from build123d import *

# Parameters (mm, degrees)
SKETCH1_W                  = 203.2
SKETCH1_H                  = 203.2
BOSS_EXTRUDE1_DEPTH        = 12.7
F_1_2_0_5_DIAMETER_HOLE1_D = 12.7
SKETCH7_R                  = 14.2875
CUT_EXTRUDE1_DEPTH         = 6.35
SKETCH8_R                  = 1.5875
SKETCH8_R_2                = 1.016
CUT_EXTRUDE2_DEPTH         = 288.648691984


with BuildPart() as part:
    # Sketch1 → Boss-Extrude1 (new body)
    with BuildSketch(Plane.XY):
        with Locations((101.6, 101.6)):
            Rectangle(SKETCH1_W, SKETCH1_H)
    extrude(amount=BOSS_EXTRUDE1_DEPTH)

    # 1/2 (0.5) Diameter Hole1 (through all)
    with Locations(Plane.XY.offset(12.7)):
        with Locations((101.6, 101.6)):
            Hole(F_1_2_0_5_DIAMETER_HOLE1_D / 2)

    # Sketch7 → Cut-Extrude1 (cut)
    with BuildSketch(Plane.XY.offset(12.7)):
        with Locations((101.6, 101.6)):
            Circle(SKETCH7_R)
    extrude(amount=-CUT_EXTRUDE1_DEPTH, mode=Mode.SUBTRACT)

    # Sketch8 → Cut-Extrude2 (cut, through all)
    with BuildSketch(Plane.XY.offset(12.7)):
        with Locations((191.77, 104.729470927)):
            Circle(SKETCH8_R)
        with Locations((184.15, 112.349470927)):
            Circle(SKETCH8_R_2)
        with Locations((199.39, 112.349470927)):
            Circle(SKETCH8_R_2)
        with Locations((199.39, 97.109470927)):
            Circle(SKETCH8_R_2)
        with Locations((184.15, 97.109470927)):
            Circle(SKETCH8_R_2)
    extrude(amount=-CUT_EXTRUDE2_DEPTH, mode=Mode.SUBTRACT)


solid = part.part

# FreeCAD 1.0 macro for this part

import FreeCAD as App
import Part
import Sketcher

V = App.Vector
Q = App.Units.Quantity

doc = App.newDocument("Part")
params = doc.addObject("Spreadsheet::Sheet", "Params")
for row, (alias, value) in enumerate([
    ("sketch1_width", "8 in"),
    ("pad1_length", "0.5 in"),
    ("sketch2_diameter", "0.5 in"),
    ("hole_diameter", "0.5 in"),
    ("sketch3_diameter", "1.125 in"),
    ("pocket1_length", "0.25 in"),
    ("sketch4_diameter", "0.08 in"),
    ("sketch4_diameter2", "0.125 in"),
], start=1):
    params.set(f"A{row}", alias)
    params.set(f"B{row}", "=" + value)
    params.setAlias(f"B{row}", alias)

body = doc.addObject("PartDesign::Body", "Body")

# Sketch on XY plane
sketch1 = doc.addObject("Sketcher::SketchObject", "Sketch")
body.addObject(sketch1)
sketch1.AttachmentSupport = (doc.XY_Plane, [""])
sketch1.MapMode = "FlatFace"
sketch1.addGeometry([
    Part.LineSegment(V(0, 203, 0), V(0, 0, 0)),
    Part.LineSegment(V(0, 0, 0), V(203, 0, 0)),
    Part.LineSegment(V(203, 0, 0), V(203, 203, 0)),
    Part.LineSegment(V(203, 203, 0), V(0, 203, 0)),
], False)
sketch1.addConstraint([
    Sketcher.Constraint("Coincident", 0, 2, 1, 1),
    Sketcher.Constraint("Coincident", 1, 2, 2, 1),
    Sketcher.Constraint("Coincident", 2, 2, 3, 1),
    Sketcher.Constraint("Coincident", 3, 2, 0, 1),
    Sketcher.Constraint("Vertical", 0),
    Sketcher.Constraint("Horizontal", 1),
    Sketcher.Constraint("Vertical", 2),
    Sketcher.Constraint("Horizontal", 3),
    Sketcher.Constraint("Coincident", 0, 2, -1, 1),
    Sketcher.Constraint("Equal", 3, 0),
    Sketcher.Constraint("DistanceX", 1, 1, 1, 2, Q("8 in")),
])
sketch1.setExpression("Constraints[10]", "Params.sketch1_width")
pad1 = doc.addObject("PartDesign::Pad", "Pad")
body.addObject(pad1)
pad1.Profile = sketch1
pad1.setExpression("Length", "Params.pad1_length")

# Sketch on XY plane
sketch2 = doc.addObject("Sketcher::SketchObject", "Sketch001")
body.addObject(sketch2)
sketch2.AttachmentSupport = (doc.XY_Plane, [""])
sketch2.MapMode = "FlatFace"
sketch2.AttachmentOffset = App.Placement(V(0, 0, 0.5 * 25.4), App.Rotation())
sketch2.addGeometry(Part.Circle(V(102, 102, 0), V(0, 0, 1), 6), False)
sketch2.addConstraint([
    Sketcher.Constraint("Diameter", 0, Q("0.5 in")),
    Sketcher.Constraint("DistanceX", -1, 1, 0, 3, Q("4 in")),
    Sketcher.Constraint("DistanceY", -1, 1, 0, 3, Q("4 in")),
])
sketch2.setExpression("Constraints[0]", "Params.sketch2_diameter")
doc.recompute()
hole = doc.addObject("PartDesign::Hole", "Hole")
body.addObject(hole)
hole.Profile = sketch2
hole.ThreadType = "None"
hole.setExpression("Diameter", "Params.hole_diameter")
hole.DepthType = "ThroughAll"

# Sketch on XY plane
sketch3 = doc.addObject("Sketcher::SketchObject", "Sketch002")
body.addObject(sketch3)
sketch3.AttachmentSupport = (doc.XY_Plane, [""])
sketch3.MapMode = "FlatFace"
sketch3.AttachmentOffset = App.Placement(V(0, 0, 0.5 * 25.4), App.Rotation())
sketch3.addGeometry(Part.Circle(V(102, 102, 0), V(0, 0, 1), 14), False)
sketch3.addConstraint([
    Sketcher.Constraint("Diameter", 0, Q("1.125 in")),
    Sketcher.Constraint("DistanceX", -1, 1, 0, 3, Q("4 in")),
    Sketcher.Constraint("DistanceY", -1, 1, 0, 3, Q("4 in")),
])
sketch3.setExpression("Constraints[0]", "Params.sketch3_diameter")
pocket1 = doc.addObject("PartDesign::Pocket", "Pocket")
body.addObject(pocket1)
pocket1.Profile = sketch3
pocket1.setExpression("Length", "Params.pocket1_length")

# Sketch on XY plane
sketch4 = doc.addObject("Sketcher::SketchObject", "Sketch003")
body.addObject(sketch4)
sketch4.AttachmentSupport = (doc.XY_Plane, [""])
sketch4.MapMode = "FlatFace"
sketch4.AttachmentOffset = App.Placement(V(0, 0, 0.5 * 25.4), App.Rotation())
sketch4.addGeometry([
    Part.Circle(V(191.8, 104.7, 0), V(0, 0, 1), 1.6),  # 0
    Part.Circle(V(184.2, 112.3, 0), V(0, 0, 1), 1),  # 1
    Part.Circle(V(199.4, 112.3, 0), V(0, 0, 1), 1),  # 2
    Part.Circle(V(199.4, 97.1, 0), V(0, 0, 1), 1),  # 3
    Part.Circle(V(184.2, 97.1, 0), V(0, 0, 1), 1),  # 4
], False)
sketch4.addConstraint([
    Sketcher.Constraint("Equal", 1, 2),
    Sketcher.Constraint("Equal", 2, 3),
    Sketcher.Constraint("Equal", 3, 4),
    Sketcher.Constraint("Horizontal", 1, 3, 2, 3),
    Sketcher.Constraint("Horizontal", 3, 3, 4, 3),
    Sketcher.Constraint("Vertical", 2, 3, 3, 3),
    Sketcher.Constraint("Vertical", 1, 3, 4, 3),
    Sketcher.Constraint("Diameter", 1, Q("0.08 in")),
    Sketcher.Constraint("Diameter", 0, Q("0.125 in")),
    Sketcher.Constraint("DistanceX", 1, 3, 0, 3, Q("0.3 in")),
    Sketcher.Constraint("DistanceY", 0, 3, 1, 3, Q("0.3 in")),
    Sketcher.Constraint("DistanceX", 0, 3, 2, 3, Q("0.3 in")),
    Sketcher.Constraint("DistanceY", 3, 3, 0, 3, Q("0.3 in")),
    Sketcher.Constraint("DistanceX", -1, 1, 0, 3, Q("7.55 in")),
    Sketcher.Constraint("DistanceY", -1, 1, 0, 3, Q("104.729471 mm")),
])
sketch4.setExpression("Constraints[7]", "Params.sketch4_diameter")
sketch4.setExpression("Constraints[8]", "Params.sketch4_diameter2")
pocket2 = doc.addObject("PartDesign::Pocket", "Pocket001")
body.addObject(pocket2)
pocket2.Profile = sketch4
pocket2.Type = "ThroughAll"

doc.recompute()
